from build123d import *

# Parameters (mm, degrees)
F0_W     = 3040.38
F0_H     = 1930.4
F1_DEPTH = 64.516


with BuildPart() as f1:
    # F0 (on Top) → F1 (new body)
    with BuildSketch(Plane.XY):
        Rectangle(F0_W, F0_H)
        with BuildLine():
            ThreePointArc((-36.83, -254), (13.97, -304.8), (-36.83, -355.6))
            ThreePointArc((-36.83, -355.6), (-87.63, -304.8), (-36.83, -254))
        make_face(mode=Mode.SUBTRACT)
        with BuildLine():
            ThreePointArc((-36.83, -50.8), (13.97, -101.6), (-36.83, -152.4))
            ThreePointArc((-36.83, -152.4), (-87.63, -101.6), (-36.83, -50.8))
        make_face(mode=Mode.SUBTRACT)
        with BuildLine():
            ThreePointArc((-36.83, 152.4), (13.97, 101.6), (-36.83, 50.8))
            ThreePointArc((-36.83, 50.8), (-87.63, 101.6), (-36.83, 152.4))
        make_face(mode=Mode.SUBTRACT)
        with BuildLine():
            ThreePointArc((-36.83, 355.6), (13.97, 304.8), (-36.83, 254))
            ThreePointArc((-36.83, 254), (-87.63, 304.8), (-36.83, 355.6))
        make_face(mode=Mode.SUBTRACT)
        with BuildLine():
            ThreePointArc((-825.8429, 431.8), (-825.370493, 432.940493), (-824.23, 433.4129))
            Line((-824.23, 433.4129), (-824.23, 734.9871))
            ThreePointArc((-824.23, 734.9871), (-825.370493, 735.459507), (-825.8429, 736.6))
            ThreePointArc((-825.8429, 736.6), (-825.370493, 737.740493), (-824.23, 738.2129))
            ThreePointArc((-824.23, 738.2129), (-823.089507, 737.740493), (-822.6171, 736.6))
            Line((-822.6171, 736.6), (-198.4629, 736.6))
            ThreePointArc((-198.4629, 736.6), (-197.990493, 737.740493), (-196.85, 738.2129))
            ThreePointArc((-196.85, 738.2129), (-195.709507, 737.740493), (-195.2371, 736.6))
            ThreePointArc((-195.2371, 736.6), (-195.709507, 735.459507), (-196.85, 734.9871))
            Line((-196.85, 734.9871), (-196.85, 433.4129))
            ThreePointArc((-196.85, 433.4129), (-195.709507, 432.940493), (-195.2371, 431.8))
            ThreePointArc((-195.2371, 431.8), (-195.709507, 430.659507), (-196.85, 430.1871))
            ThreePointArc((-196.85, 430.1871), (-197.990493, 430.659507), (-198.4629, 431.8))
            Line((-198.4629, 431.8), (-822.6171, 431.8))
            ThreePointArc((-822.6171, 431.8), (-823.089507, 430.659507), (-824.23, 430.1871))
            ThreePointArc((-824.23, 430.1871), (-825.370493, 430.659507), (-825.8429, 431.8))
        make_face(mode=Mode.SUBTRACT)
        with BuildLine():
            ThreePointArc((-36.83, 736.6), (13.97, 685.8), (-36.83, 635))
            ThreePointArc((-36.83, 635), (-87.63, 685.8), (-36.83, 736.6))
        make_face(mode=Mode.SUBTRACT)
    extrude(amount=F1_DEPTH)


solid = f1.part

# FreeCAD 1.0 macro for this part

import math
import FreeCAD as App
import Part
import Sketcher
from FreeCAD import Vector
Q = App.Units.Quantity

doc = App.newDocument("Part")
body = doc.addObject("PartDesign::Body", "Body")

sketch1 = body.newObject("Sketcher::SketchObject", "Sketch")
sketch1.AttachmentSupport = (doc.getObject("XY_Plane"), [""])
sketch1.MapMode = "FlatFace"
sketch1.addGeometry([
    Part.LineSegment(Vector(-1520.19, 965.2, 0), Vector(-1520.19, -965.2, 0)),
    Part.LineSegment(Vector(-1520.19, -965.2, 0), Vector(1520.19, -965.2, 0)),
    Part.LineSegment(Vector(1520.19, -965.2, 0), Vector(1520.19, 965.2, 0)),
    Part.LineSegment(Vector(1520.19, 965.2, 0), Vector(-1520.19, 965.2, 0)),
    Part.Circle(Vector(-36.83, -304.8, 0), Vector(0, 0, 1), 50.8),
    Part.Circle(Vector(-36.83, -101.6, 0), Vector(0, 0, 1), 50.8),
    Part.Circle(Vector(-36.83, 101.6, 0), Vector(0, 0, 1), 50.8),
    Part.ArcOfCircle(Part.Circle(Vector(-824.230002, 431.799998, 0), Vector(0, 0, 1), 1.612898), math.radians(179.999943), math.radians(270.000057)),
    Part.ArcOfCircle(Part.Circle(Vector(-824.230002, 431.800002, 0), Vector(0, 0, 1), 1.612898), math.radians(89.999943), math.radians(180.000057)),
    Part.LineSegment(Vector(-824.23, 433.4129, 0), Vector(-824.23, 734.9871, 0)),
    Part.ArcOfCircle(Part.Circle(Vector(-824.230002, 736.599998, 0), Vector(0, 0, 1), 1.612898), math.radians(179.999943), math.radians(270.000057)),
    Part.ArcOfCircle(Part.Circle(Vector(-824.230002, 736.600002, 0), Vector(0, 0, 1), 1.612898), math.radians(89.999943), math.radians(180.000057)),
    Part.ArcOfCircle(Part.Circle(Vector(-824.229998, 736.600002, 0), Vector(0, 0, 1), 1.612898), math.radians(-0.000057), math.radians(90.000057)),
    Part.LineSegment(Vector(-822.6171, 736.6, 0), Vector(-198.4629, 736.6, 0)),
    Part.ArcOfCircle(Part.Circle(Vector(-196.850002, 736.600002, 0), Vector(0, 0, 1), 1.612898), math.radians(89.999943), math.radians(180.000057)),
    Part.ArcOfCircle(Part.Circle(Vector(-196.849998, 736.600002, 0), Vector(0, 0, 1), 1.612898), math.radians(-0.000057), math.radians(90.000057)),
    Part.ArcOfCircle(Part.Circle(Vector(-196.849998, 736.599998, 0), Vector(0, 0, 1), 1.612898), math.radians(-90.000057), math.radians(0.000057)),
    Part.LineSegment(Vector(-196.85, 734.9871, 0), Vector(-196.85, 433.4129, 0)),
    Part.ArcOfCircle(Part.Circle(Vector(-196.849998, 431.800002, 0), Vector(0, 0, 1), 1.612898), math.radians(-0.000057), math.radians(90.000057)),
    Part.ArcOfCircle(Part.Circle(Vector(-196.849998, 431.799998, 0), Vector(0, 0, 1), 1.612898), math.radians(-90.000057), math.radians(0.000057)),
    Part.ArcOfCircle(Part.Circle(Vector(-196.850002, 431.799998, 0), Vector(0, 0, 1), 1.612898), math.radians(179.999943), math.radians(270.000057)),
    Part.LineSegment(Vector(-198.4629, 431.8, 0), Vector(-822.6171, 431.8, 0)),
    Part.ArcOfCircle(Part.Circle(Vector(-824.229998, 431.799998, 0), Vector(0, 0, 1), 1.612898), math.radians(-90.000057), math.radians(0.000057)),
    Part.Circle(Vector(-36.83, 304.8, 0), Vector(0, 0, 1), 50.8),
    Part.Circle(Vector(-36.83, 685.8, 0), Vector(0, 0, 1), 50.8),
], False)
sketch1.addConstraint([
    Sketcher.Constraint("Coincident", 0, 2, 1, 1),
    Sketcher.Constraint("Coincident", 1, 2, 2, 1),
    Sketcher.Constraint("Coincident", 2, 2, 3, 1),
    Sketcher.Constraint("Coincident", 3, 2, 0, 1),
    Sketcher.Constraint("Coincident", 7, 1, 8, 2),
    Sketcher.Constraint("Coincident", 8, 1, 9, 1),
    Sketcher.Constraint("Coincident", 9, 2, 10, 2),
    Sketcher.Constraint("Coincident", 10, 1, 11, 2),
    Sketcher.Constraint("Coincident", 11, 1, 12, 2),
    Sketcher.Constraint("Coincident", 12, 1, 13, 1),
    Sketcher.Constraint("Coincident", 13, 2, 14, 2),
    Sketcher.Constraint("Coincident", 14, 1, 15, 2),
    Sketcher.Constraint("Coincident", 15, 1, 16, 2),
    Sketcher.Constraint("Coincident", 16, 1, 17, 1),
    Sketcher.Constraint("Coincident", 17, 2, 18, 2),
    Sketcher.Constraint("Coincident", 18, 1, 19, 2),
    Sketcher.Constraint("Coincident", 19, 1, 20, 2),
    Sketcher.Constraint("Coincident", 20, 1, 21, 1),
    Sketcher.Constraint("Coincident", 21, 2, 22, 2),
    Sketcher.Constraint("Coincident", 22, 1, 7, 2),
    Sketcher.Constraint("Vertical", 0),
    Sketcher.Constraint("Horizontal", 1),
    Sketcher.Constraint("Vertical", 2),
    Sketcher.Constraint("Horizontal", 3),
    Sketcher.Constraint("Vertical", 9),
    Sketcher.Constraint("Horizontal", 13),
    Sketcher.Constraint("Vertical", 17),
    Sketcher.Constraint("Horizontal", 21),
    Sketcher.Constraint("Coincident", 8, 3, 7, 3),
    Sketcher.Constraint("Coincident", 11, 3, 10, 3),
    Sketcher.Constraint("Coincident", 12, 3, 10, 3),
    Sketcher.Constraint("Coincident", 15, 3, 14, 3),
    Sketcher.Constraint("Coincident", 16, 3, 14, 3),
    Sketcher.Constraint("Coincident", 19, 3, 18, 3),
    Sketcher.Constraint("Coincident", 20, 3, 18, 3),
    Sketcher.Constraint("Coincident", 22, 3, 7, 3),
    Sketcher.Constraint("Equal", 4, 5),
    Sketcher.Constraint("Equal", 5, 6),
    Sketcher.Constraint("Equal", 8, 10),
    Sketcher.Constraint("Equal", 12, 14),
    Sketcher.Constraint("Equal", 16, 18),
    Sketcher.Constraint("Equal", 6, 23),
    Sketcher.Constraint("Equal", 23, 24),
    Sketcher.Constraint("Symmetric", 0, 2, 2, 2, -1, 1),
    Sketcher.Constraint("Symmetric", 5, 3, 6, 3, -1),
    Sketcher.Constraint("Symmetric", 4, 3, 23, 3, -1),
    Sketcher.Constraint("Horizontal", 12, 3, 14, 3),
    Sketcher.Constraint("Horizontal", 8, 3, 18, 3),
    Sketcher.Constraint("Horizontal", 22, 3, 7, 1),
    Sketcher.Constraint("Horizontal", 16, 3, 10, 1),
    Sketcher.Constraint("Horizontal", 10, 1, 12, 1),
    Sketcher.Constraint("Horizontal", 13, 2, 15, 1),
    Sketcher.Constraint("Horizontal", 7, 1, 18, 1),
    Sketcher.Constraint("Horizontal", 18, 1, 20, 1),
    Sketcher.Constraint("Vertical", 4, 3, 5, 3),
    Sketcher.Constraint("Vertical", 8, 3, 10, 3),
    Sketcher.Constraint("Vertical", 16, 3, 18, 3),
    Sketcher.Constraint("Vertical", 23, 3, 24, 3),
    Sketcher.Constraint("Vertical", 22, 3, 8, 1),
    Sketcher.Constraint("Vertical", 9, 2, 11, 1),
    Sketcher.Constraint("Vertical", 20, 3, 14, 1),
    Sketcher.Constraint("Vertical", 14, 1, 16, 1),
    Sketcher.Constraint("Vertical", 17, 2, 19, 1),
    Sketcher.Constraint("Vertical", 11, 1, 22, 1),
    Sketcher.Constraint("Diameter", 4, Q("4 in")),
    Sketcher.Constraint("DistanceY", 0, 2, 0, 1, Q("76 in")),
    Sketcher.Constraint("DistanceX", 1, 1, 1, 2, Q("119.7 in")),
    Sketcher.Constraint("DistanceY", 4, 3, -1, 1, Q("12 in")),
    Sketcher.Constraint("DistanceY", 5, 3, -1, 1, Q("4 in")),
    Sketcher.Constraint("DistanceY", -1, 1, 7, 3, Q("16.9999999 in")),
    Sketcher.Constraint("DistanceY", -1, 1, 10, 3, Q("28.9999999 in")),
    Sketcher.Constraint("DistanceY", -1, 1, 24, 3, Q("27 in")),
    Sketcher.Constraint("DistanceX", 7, 3, 6, 3, Q("31.0000001 in")),
    Sketcher.Constraint("Radius", 7, Q("0.0634999 in")),
    Sketcher.Constraint("DistanceX", 12, 3, 14, 3, Q("24.6999999 in")),
    Sketcher.Constraint("DistanceX", 0, 2, 7, 3, Q("27.3999999 in")),
])
pad1 = body.newObject("PartDesign::Pad", "Pad")
pad1.Profile = sketch1
pad1.Length = Q("2.54 in")

doc.recompute()
